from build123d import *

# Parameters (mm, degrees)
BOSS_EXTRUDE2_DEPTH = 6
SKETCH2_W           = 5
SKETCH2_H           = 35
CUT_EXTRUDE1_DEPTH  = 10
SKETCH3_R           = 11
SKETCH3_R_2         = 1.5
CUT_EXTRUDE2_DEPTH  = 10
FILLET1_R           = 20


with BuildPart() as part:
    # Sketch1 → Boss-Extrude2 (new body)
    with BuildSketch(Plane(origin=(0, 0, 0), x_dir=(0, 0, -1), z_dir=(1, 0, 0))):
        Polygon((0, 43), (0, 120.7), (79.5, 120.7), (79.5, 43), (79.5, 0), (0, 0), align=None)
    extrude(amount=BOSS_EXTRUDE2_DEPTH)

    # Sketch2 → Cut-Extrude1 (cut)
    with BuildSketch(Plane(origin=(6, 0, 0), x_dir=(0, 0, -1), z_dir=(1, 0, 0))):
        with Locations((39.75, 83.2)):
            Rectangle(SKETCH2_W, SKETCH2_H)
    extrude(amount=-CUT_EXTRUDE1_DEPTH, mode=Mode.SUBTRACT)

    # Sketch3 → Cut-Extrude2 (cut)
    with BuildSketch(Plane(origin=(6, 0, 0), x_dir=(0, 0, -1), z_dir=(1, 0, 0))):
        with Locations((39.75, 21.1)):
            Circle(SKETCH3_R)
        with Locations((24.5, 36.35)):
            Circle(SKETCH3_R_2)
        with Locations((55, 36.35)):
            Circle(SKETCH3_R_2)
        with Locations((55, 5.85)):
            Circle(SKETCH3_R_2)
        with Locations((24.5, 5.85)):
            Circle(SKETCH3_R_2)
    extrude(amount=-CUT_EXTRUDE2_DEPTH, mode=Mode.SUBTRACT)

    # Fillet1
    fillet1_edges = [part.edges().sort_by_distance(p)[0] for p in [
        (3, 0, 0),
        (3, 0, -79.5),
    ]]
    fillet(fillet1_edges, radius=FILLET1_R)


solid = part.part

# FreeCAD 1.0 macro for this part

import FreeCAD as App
import Part
import Sketcher


def edges_at(feature, points):
    """Names of the edges that pass closest to the given points."""
    edges = feature.Shape.Edges
    near = lambda p: min(range(len(edges)), key=lambda i: edges[i].distToShape(Part.Vertex(*p))[0])
    return sorted({f"Edge{near(p) + 1}" for p in points})


def add_polygon(sketch, points):
    """Adds a closed chain of lines whose ends are joined by coincident constraints."""
    first, n = sketch.GeometryCount, len(points)
    for a, b in zip(points, points[1:] + points[:1]):
        sketch.addGeometry(Part.LineSegment(App.Vector(*a, 0), App.Vector(*b, 0)), False)
    for i in range(n):
        sketch.addConstraint(Sketcher.Constraint("Coincident", first + i, 2, first + (i + 1) % n, 1))

doc = App.newDocument("Part")
body = doc.addObject("PartDesign::Body", "Body")

sketch1 = body.newObject("Sketcher::SketchObject", "Sketch")
sketch1.AttachmentSupport = (doc.getObject("YZ_Plane"), [""])
sketch1.MapMode = "FlatFace"
add_polygon(sketch1, [(121, 0), (0, 0), (0, -80), (121, -80)])
sketch1.addConstraint([
    Sketcher.Constraint("Horizontal", 0),
    Sketcher.Constraint("Vertical", 1),
    Sketcher.Constraint("Horizontal", 2),
    Sketcher.Constraint("Vertical", 3),
    Sketcher.Constraint("Coincident", 0, 2, -1, 1),
    Sketcher.Constraint("DistanceX", 0, 2, 0, 1, 120.7),
    Sketcher.Constraint("DistanceY", 1, 2, 1, 1, 79.5),
])
pad1 = body.newObject("PartDesign::Pad", "Pad")
pad1.Profile = sketch1
pad1.Length = 6

sketch2 = body.newObject("Sketcher::SketchObject", "Sketch001")
sketch2.AttachmentSupport = (doc.getObject("YZ_Plane"), [""])
sketch2.MapMode = "FlatFace"
sketch2.AttachmentOffset = App.Placement(App.Vector(0, 0, 6), App.Rotation())
add_polygon(sketch2, [(101, -37), (66, -37), (66, -42), (101, -42)])
sketch2.addConstraint([
    Sketcher.Constraint("Horizontal", 0),
    Sketcher.Constraint("Vertical", 1),
    Sketcher.Constraint("Horizontal", 2),
    Sketcher.Constraint("Vertical", 3),
    Sketcher.Constraint("DistanceX", 0, 2, 0, 1, 35.0),
    Sketcher.Constraint("DistanceY", 1, 2, 1, 1, 5.0),
    Sketcher.Constraint("DistanceX", -1, 1, 0, 2, 65.7),
    Sketcher.Constraint("DistanceY", 0, 2, -1, 1, 37.25),
])
pocket1 = body.newObject("PartDesign::Pocket", "Pocket")
pocket1.Profile = sketch2
pocket1.Length = 10

sketch3 = body.newObject("Sketcher::SketchObject", "Sketch002")
sketch3.AttachmentSupport = (doc.getObject("YZ_Plane"), [""])
sketch3.MapMode = "FlatFace"
sketch3.AttachmentOffset = App.Placement(App.Vector(0, 0, 6), App.Rotation())
sketch3.addGeometry([
    Part.Circle(App.Vector(21.1, -39.8, 0), App.Vector(0, 0, 1), 11),
    Part.Circle(App.Vector(36.4, -24.5, 0), App.Vector(0, 0, 1), 1.5),
    Part.Circle(App.Vector(36.4, -55, 0), App.Vector(0, 0, 1), 1.5),
    Part.Circle(App.Vector(5.8, -55, 0), App.Vector(0, 0, 1), 1.5),
    Part.Circle(App.Vector(5.8, -24.5, 0), App.Vector(0, 0, 1), 1.5),
], False)
sketch3.addConstraint([
    Sketcher.Constraint("Equal", 1, 2),
    Sketcher.Constraint("Equal", 2, 3),
    Sketcher.Constraint("Equal", 3, 4),
    Sketcher.Constraint("Horizontal", 2, 3, 3, 3),
    Sketcher.Constraint("Horizontal", 1, 3, 4, 3),
    Sketcher.Constraint("Vertical", 1, 3, 2, 3),
    Sketcher.Constraint("Vertical", 3, 3, 4, 3),
    Sketcher.Constraint("Diameter", 0, 22.0),
    Sketcher.Constraint("Diameter", 1, 3.0),
    Sketcher.Constraint("DistanceY", 2, 3, -1, 1, 55.0),
    Sketcher.Constraint("DistanceX", -1, 1, 0, 3, 21.1),
    Sketcher.Constraint("DistanceY", 1, 3, -1, 1, 24.5),
    Sketcher.Constraint("DistanceX", 3, 3, 2, 3, 30.5),
    Sketcher.Constraint("DistanceY", 0, 3, -1, 1, 39.75),
    Sketcher.Constraint("DistanceX", -1, 1, 1, 3, 36.35),
])
pocket2 = body.newObject("PartDesign::Pocket", "Pocket001")
pocket2.Profile = sketch3
pocket2.Length = 10
doc.recompute()

fillet = body.newObject("PartDesign::Fillet", "Fillet")
fillet.Base = (pocket2, edges_at(pocket2, [(3, 0, 0), (3, 0, -79.5)]))
fillet.Radius = 20

doc.recompute()
